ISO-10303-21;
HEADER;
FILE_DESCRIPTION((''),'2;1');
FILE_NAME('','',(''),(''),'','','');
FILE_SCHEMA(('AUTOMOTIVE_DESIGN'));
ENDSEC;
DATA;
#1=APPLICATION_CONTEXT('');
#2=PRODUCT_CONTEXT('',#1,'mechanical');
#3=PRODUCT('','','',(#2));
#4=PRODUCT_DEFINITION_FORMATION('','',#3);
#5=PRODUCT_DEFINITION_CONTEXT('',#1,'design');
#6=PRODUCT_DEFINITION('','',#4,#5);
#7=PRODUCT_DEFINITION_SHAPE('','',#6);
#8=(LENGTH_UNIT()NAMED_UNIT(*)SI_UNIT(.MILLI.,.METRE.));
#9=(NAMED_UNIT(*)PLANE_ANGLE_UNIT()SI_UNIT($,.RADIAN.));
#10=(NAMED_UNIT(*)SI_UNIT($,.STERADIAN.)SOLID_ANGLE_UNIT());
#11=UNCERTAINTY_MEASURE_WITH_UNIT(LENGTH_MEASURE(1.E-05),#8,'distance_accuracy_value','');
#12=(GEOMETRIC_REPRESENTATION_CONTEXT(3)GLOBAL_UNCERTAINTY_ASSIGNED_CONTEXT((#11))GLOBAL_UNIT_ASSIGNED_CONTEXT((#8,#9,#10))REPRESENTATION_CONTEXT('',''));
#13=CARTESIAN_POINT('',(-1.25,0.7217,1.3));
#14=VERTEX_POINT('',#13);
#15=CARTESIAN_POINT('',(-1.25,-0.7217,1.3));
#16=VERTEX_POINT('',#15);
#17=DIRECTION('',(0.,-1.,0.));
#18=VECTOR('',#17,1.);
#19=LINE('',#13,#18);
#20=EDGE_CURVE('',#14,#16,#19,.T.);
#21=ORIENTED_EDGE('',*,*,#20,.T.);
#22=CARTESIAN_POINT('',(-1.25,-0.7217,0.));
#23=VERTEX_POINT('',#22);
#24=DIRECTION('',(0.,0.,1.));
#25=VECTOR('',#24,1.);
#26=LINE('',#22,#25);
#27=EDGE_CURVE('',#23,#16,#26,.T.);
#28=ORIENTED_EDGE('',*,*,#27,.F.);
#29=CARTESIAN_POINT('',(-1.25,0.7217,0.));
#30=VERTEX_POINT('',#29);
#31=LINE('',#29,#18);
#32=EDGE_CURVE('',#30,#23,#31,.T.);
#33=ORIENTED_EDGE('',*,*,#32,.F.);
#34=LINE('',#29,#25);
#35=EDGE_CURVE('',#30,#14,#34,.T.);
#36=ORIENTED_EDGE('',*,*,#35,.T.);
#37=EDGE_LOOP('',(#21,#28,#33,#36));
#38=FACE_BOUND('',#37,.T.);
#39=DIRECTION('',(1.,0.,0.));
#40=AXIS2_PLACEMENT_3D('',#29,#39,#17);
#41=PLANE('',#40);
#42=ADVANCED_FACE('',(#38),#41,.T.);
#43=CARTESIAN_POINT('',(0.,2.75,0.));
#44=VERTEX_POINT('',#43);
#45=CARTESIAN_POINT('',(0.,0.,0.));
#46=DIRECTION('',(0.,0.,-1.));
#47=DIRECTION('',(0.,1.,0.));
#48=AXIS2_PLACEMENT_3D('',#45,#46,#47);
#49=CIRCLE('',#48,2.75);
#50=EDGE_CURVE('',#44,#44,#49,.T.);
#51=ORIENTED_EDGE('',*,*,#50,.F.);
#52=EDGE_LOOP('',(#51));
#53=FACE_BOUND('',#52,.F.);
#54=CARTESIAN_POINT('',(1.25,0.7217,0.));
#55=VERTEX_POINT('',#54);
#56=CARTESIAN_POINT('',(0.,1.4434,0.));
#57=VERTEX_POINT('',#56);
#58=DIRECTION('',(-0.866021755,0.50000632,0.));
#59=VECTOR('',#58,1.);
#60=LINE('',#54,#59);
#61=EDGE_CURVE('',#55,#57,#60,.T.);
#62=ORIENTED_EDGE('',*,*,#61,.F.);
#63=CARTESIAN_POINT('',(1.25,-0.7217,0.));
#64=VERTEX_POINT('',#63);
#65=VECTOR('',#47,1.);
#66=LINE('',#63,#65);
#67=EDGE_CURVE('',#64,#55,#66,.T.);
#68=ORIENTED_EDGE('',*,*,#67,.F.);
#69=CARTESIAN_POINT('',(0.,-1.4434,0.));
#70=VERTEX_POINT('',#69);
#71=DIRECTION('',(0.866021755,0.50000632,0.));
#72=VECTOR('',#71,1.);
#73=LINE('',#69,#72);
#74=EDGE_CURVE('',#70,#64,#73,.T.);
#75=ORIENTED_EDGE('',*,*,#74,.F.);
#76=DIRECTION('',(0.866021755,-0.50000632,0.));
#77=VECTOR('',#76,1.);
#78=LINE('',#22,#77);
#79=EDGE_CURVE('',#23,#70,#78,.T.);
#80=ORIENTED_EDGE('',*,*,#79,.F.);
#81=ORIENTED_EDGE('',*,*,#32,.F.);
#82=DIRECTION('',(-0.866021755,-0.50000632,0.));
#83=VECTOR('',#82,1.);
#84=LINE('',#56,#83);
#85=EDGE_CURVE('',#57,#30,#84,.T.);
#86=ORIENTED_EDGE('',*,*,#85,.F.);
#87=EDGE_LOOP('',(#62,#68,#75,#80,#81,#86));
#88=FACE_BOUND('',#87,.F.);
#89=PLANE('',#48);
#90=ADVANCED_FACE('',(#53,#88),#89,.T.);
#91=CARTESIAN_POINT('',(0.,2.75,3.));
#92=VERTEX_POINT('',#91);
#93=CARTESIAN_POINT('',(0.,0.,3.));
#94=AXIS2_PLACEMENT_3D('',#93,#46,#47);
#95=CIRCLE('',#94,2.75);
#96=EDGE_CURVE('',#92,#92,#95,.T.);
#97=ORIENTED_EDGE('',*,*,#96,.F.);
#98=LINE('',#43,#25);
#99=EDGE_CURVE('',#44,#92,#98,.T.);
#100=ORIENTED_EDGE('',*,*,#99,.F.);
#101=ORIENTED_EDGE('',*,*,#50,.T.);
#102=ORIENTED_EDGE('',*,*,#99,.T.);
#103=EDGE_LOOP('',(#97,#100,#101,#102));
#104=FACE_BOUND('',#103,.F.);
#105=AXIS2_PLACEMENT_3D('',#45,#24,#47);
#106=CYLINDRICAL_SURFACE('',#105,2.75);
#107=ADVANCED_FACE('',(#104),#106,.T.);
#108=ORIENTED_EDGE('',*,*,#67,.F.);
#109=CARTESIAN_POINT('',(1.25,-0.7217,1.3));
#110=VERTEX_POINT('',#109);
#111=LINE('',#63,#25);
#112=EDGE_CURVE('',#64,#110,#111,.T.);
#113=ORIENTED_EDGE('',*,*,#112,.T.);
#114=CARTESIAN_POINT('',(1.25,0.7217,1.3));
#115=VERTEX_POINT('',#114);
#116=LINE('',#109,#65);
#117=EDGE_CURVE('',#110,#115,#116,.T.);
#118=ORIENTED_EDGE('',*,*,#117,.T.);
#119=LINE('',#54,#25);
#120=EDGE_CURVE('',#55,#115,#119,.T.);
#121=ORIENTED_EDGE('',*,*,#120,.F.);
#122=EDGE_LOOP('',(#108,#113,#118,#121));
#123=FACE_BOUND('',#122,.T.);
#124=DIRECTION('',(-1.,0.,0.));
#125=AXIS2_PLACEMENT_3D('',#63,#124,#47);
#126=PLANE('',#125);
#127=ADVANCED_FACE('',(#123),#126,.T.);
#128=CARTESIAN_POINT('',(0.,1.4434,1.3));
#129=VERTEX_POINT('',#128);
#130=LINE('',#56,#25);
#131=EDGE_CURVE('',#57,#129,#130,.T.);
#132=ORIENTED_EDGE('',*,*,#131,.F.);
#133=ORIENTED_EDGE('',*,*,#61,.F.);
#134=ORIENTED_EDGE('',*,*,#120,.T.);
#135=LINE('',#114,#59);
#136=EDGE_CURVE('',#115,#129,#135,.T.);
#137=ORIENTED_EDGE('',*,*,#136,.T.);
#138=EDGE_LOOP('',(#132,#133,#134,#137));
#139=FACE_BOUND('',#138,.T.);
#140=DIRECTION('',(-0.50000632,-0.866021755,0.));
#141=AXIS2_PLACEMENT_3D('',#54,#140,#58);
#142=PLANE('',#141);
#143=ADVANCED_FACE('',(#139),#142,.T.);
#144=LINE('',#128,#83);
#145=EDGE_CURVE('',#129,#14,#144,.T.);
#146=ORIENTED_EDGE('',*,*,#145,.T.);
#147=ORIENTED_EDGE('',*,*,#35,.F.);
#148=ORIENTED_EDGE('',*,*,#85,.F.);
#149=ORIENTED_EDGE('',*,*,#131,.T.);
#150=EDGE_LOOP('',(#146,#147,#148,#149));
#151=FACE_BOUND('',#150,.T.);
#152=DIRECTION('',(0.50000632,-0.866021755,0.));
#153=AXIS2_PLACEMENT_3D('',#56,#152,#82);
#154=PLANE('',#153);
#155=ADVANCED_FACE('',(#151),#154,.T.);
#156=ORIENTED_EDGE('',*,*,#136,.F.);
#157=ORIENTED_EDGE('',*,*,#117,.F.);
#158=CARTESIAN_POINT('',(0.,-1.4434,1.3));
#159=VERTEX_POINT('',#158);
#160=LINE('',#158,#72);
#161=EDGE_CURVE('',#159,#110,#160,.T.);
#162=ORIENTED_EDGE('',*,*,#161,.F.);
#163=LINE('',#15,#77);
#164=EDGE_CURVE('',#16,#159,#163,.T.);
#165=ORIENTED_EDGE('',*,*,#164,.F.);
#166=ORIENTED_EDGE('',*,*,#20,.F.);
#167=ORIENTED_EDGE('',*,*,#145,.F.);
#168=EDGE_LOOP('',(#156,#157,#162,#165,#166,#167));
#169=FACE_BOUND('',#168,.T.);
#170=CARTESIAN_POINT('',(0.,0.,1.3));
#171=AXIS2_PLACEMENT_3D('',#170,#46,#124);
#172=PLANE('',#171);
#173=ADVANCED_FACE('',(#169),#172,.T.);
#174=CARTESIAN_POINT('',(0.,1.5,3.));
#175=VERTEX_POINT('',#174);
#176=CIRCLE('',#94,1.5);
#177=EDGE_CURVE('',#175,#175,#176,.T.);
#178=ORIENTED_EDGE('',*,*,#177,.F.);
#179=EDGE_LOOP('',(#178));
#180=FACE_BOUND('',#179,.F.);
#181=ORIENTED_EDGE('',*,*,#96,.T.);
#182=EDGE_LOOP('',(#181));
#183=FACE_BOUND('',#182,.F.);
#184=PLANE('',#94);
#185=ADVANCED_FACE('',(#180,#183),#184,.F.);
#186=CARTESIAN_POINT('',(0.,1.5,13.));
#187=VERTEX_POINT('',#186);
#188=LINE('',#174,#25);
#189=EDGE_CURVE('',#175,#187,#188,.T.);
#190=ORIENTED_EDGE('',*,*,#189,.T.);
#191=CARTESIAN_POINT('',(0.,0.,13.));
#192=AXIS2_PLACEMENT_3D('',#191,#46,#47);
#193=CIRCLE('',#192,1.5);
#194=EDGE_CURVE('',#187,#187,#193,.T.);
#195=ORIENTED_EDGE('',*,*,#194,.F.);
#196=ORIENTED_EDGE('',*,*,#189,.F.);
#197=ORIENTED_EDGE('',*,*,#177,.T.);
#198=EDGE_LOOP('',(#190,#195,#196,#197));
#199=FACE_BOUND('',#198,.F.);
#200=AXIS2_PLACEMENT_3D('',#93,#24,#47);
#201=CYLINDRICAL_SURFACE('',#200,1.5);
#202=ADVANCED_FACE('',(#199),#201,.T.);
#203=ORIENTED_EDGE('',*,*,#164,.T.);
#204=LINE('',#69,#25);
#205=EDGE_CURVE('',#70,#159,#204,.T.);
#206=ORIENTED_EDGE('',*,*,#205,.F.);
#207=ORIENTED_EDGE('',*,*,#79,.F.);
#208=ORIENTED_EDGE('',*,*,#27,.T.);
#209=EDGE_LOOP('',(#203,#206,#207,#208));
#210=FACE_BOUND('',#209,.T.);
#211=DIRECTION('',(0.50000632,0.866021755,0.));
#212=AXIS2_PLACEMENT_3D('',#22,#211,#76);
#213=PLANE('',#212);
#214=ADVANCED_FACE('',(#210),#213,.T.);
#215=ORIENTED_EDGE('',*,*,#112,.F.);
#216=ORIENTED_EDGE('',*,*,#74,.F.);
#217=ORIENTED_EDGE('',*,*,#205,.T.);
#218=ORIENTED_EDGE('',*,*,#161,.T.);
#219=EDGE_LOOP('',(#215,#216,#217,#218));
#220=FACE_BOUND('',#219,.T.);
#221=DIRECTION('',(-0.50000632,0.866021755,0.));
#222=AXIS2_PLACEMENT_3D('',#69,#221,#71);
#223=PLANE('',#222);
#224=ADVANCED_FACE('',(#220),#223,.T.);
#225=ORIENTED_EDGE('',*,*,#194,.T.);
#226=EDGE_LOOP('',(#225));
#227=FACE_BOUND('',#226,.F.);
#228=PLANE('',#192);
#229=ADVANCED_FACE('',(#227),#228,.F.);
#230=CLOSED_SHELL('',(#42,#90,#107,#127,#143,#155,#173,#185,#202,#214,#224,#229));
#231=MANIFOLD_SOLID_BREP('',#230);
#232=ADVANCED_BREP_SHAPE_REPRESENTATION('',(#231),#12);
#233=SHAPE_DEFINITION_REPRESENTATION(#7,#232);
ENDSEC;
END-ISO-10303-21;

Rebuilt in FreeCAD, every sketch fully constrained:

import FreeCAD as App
import Part
import Sketcher
Q = App.Units.Quantity


def add_polygon(sketch, points):
    """Adds a closed chain of lines whose ends are joined by coincident constraints."""
    first, n = sketch.GeometryCount, len(points)
    for a, b in zip(points, points[1:] + points[:1]):
        sketch.addGeometry(Part.LineSegment(App.Vector(*a, 0), App.Vector(*b, 0)), False)
    for i in range(n):
        sketch.addConstraint(Sketcher.Constraint("Coincident", first + i, 2, first + (i + 1) % n, 1))

doc = App.newDocument("Part")
body = doc.addObject("PartDesign::Body", "Body")

sketch1 = body.newObject("Sketcher::SketchObject", "Sketch")
sketch1.AttachmentSupport = (doc.getObject("YZ_Plane"), [""])
sketch1.MapMode = "FlatFace"
add_polygon(sketch1, [(1.5, 13), (0, 13), (0, 0), (2.8, 0), (2.8, 3), (1.5, 3)])
sketch1.addConstraint([
    Sketcher.Constraint("Horizontal", 0),
    Sketcher.Constraint("Vertical", 1),
    Sketcher.Constraint("Horizontal", 2),
    Sketcher.Constraint("Vertical", 3),
    Sketcher.Constraint("Horizontal", 4),
    Sketcher.Constraint("Vertical", 5),
    Sketcher.Constraint("Coincident", 1, 2, -1, 1),
    Sketcher.Constraint("DistanceY", 3, 1, 3, 2, 3.0),
    Sketcher.Constraint("DistanceY", 5, 1, 5, 2, 10.0),
    Sketcher.Constraint("DistanceX", 0, 2, 0, 1, 1.5),
    Sketcher.Constraint("DistanceX", 2, 1, 2, 2, 2.75),
])
revolution = body.newObject("PartDesign::Revolution", "Revolution")
revolution.Profile = sketch1
revolution.ReferenceAxis = (sketch1, ["V_Axis"])
revolution.Angle = 360

sketch2 = body.newObject("Sketcher::SketchObject", "Sketch001")
sketch2.AttachmentSupport = (doc.getObject("XY_Plane"), [""])
sketch2.MapMode = "FlatFace"
add_polygon(sketch2, [(-1.2, 0.7), (0, 1.4), (1.2, 0.7), (1.2, -0.7), (0, -1.4), (-1.2, -0.7)])
sketch2.addConstraint([
    Sketcher.Constraint("Vertical", 2),
    Sketcher.Constraint("Vertical", 5),
    Sketcher.Constraint("Symmetric", 0, 2, 3, 2, -1, 1),
    Sketcher.Constraint("Symmetric", 1, 2, 4, 2, -1, 1),
    Sketcher.Constraint("PointOnObject", 0, 2, -2),
    Sketcher.Constraint("Parallel", 0, 3),
    Sketcher.Constraint("Horizontal", 2, 2, 4, 2),
    Sketcher.Constraint("DistanceX", 4, 2, 2, 2, 2.5),
    Sketcher.Constraint("Angle", 0, Q("30.0004 deg")),
    Sketcher.Constraint("DistanceY", 2, 2, 2, 1, 1.4434),
])
pocket1 = body.newObject("PartDesign::Pocket", "Pocket")
pocket1.Profile = sketch2
pocket1.Length = 1.3
pocket1.Reversed = True

doc.recompute()
